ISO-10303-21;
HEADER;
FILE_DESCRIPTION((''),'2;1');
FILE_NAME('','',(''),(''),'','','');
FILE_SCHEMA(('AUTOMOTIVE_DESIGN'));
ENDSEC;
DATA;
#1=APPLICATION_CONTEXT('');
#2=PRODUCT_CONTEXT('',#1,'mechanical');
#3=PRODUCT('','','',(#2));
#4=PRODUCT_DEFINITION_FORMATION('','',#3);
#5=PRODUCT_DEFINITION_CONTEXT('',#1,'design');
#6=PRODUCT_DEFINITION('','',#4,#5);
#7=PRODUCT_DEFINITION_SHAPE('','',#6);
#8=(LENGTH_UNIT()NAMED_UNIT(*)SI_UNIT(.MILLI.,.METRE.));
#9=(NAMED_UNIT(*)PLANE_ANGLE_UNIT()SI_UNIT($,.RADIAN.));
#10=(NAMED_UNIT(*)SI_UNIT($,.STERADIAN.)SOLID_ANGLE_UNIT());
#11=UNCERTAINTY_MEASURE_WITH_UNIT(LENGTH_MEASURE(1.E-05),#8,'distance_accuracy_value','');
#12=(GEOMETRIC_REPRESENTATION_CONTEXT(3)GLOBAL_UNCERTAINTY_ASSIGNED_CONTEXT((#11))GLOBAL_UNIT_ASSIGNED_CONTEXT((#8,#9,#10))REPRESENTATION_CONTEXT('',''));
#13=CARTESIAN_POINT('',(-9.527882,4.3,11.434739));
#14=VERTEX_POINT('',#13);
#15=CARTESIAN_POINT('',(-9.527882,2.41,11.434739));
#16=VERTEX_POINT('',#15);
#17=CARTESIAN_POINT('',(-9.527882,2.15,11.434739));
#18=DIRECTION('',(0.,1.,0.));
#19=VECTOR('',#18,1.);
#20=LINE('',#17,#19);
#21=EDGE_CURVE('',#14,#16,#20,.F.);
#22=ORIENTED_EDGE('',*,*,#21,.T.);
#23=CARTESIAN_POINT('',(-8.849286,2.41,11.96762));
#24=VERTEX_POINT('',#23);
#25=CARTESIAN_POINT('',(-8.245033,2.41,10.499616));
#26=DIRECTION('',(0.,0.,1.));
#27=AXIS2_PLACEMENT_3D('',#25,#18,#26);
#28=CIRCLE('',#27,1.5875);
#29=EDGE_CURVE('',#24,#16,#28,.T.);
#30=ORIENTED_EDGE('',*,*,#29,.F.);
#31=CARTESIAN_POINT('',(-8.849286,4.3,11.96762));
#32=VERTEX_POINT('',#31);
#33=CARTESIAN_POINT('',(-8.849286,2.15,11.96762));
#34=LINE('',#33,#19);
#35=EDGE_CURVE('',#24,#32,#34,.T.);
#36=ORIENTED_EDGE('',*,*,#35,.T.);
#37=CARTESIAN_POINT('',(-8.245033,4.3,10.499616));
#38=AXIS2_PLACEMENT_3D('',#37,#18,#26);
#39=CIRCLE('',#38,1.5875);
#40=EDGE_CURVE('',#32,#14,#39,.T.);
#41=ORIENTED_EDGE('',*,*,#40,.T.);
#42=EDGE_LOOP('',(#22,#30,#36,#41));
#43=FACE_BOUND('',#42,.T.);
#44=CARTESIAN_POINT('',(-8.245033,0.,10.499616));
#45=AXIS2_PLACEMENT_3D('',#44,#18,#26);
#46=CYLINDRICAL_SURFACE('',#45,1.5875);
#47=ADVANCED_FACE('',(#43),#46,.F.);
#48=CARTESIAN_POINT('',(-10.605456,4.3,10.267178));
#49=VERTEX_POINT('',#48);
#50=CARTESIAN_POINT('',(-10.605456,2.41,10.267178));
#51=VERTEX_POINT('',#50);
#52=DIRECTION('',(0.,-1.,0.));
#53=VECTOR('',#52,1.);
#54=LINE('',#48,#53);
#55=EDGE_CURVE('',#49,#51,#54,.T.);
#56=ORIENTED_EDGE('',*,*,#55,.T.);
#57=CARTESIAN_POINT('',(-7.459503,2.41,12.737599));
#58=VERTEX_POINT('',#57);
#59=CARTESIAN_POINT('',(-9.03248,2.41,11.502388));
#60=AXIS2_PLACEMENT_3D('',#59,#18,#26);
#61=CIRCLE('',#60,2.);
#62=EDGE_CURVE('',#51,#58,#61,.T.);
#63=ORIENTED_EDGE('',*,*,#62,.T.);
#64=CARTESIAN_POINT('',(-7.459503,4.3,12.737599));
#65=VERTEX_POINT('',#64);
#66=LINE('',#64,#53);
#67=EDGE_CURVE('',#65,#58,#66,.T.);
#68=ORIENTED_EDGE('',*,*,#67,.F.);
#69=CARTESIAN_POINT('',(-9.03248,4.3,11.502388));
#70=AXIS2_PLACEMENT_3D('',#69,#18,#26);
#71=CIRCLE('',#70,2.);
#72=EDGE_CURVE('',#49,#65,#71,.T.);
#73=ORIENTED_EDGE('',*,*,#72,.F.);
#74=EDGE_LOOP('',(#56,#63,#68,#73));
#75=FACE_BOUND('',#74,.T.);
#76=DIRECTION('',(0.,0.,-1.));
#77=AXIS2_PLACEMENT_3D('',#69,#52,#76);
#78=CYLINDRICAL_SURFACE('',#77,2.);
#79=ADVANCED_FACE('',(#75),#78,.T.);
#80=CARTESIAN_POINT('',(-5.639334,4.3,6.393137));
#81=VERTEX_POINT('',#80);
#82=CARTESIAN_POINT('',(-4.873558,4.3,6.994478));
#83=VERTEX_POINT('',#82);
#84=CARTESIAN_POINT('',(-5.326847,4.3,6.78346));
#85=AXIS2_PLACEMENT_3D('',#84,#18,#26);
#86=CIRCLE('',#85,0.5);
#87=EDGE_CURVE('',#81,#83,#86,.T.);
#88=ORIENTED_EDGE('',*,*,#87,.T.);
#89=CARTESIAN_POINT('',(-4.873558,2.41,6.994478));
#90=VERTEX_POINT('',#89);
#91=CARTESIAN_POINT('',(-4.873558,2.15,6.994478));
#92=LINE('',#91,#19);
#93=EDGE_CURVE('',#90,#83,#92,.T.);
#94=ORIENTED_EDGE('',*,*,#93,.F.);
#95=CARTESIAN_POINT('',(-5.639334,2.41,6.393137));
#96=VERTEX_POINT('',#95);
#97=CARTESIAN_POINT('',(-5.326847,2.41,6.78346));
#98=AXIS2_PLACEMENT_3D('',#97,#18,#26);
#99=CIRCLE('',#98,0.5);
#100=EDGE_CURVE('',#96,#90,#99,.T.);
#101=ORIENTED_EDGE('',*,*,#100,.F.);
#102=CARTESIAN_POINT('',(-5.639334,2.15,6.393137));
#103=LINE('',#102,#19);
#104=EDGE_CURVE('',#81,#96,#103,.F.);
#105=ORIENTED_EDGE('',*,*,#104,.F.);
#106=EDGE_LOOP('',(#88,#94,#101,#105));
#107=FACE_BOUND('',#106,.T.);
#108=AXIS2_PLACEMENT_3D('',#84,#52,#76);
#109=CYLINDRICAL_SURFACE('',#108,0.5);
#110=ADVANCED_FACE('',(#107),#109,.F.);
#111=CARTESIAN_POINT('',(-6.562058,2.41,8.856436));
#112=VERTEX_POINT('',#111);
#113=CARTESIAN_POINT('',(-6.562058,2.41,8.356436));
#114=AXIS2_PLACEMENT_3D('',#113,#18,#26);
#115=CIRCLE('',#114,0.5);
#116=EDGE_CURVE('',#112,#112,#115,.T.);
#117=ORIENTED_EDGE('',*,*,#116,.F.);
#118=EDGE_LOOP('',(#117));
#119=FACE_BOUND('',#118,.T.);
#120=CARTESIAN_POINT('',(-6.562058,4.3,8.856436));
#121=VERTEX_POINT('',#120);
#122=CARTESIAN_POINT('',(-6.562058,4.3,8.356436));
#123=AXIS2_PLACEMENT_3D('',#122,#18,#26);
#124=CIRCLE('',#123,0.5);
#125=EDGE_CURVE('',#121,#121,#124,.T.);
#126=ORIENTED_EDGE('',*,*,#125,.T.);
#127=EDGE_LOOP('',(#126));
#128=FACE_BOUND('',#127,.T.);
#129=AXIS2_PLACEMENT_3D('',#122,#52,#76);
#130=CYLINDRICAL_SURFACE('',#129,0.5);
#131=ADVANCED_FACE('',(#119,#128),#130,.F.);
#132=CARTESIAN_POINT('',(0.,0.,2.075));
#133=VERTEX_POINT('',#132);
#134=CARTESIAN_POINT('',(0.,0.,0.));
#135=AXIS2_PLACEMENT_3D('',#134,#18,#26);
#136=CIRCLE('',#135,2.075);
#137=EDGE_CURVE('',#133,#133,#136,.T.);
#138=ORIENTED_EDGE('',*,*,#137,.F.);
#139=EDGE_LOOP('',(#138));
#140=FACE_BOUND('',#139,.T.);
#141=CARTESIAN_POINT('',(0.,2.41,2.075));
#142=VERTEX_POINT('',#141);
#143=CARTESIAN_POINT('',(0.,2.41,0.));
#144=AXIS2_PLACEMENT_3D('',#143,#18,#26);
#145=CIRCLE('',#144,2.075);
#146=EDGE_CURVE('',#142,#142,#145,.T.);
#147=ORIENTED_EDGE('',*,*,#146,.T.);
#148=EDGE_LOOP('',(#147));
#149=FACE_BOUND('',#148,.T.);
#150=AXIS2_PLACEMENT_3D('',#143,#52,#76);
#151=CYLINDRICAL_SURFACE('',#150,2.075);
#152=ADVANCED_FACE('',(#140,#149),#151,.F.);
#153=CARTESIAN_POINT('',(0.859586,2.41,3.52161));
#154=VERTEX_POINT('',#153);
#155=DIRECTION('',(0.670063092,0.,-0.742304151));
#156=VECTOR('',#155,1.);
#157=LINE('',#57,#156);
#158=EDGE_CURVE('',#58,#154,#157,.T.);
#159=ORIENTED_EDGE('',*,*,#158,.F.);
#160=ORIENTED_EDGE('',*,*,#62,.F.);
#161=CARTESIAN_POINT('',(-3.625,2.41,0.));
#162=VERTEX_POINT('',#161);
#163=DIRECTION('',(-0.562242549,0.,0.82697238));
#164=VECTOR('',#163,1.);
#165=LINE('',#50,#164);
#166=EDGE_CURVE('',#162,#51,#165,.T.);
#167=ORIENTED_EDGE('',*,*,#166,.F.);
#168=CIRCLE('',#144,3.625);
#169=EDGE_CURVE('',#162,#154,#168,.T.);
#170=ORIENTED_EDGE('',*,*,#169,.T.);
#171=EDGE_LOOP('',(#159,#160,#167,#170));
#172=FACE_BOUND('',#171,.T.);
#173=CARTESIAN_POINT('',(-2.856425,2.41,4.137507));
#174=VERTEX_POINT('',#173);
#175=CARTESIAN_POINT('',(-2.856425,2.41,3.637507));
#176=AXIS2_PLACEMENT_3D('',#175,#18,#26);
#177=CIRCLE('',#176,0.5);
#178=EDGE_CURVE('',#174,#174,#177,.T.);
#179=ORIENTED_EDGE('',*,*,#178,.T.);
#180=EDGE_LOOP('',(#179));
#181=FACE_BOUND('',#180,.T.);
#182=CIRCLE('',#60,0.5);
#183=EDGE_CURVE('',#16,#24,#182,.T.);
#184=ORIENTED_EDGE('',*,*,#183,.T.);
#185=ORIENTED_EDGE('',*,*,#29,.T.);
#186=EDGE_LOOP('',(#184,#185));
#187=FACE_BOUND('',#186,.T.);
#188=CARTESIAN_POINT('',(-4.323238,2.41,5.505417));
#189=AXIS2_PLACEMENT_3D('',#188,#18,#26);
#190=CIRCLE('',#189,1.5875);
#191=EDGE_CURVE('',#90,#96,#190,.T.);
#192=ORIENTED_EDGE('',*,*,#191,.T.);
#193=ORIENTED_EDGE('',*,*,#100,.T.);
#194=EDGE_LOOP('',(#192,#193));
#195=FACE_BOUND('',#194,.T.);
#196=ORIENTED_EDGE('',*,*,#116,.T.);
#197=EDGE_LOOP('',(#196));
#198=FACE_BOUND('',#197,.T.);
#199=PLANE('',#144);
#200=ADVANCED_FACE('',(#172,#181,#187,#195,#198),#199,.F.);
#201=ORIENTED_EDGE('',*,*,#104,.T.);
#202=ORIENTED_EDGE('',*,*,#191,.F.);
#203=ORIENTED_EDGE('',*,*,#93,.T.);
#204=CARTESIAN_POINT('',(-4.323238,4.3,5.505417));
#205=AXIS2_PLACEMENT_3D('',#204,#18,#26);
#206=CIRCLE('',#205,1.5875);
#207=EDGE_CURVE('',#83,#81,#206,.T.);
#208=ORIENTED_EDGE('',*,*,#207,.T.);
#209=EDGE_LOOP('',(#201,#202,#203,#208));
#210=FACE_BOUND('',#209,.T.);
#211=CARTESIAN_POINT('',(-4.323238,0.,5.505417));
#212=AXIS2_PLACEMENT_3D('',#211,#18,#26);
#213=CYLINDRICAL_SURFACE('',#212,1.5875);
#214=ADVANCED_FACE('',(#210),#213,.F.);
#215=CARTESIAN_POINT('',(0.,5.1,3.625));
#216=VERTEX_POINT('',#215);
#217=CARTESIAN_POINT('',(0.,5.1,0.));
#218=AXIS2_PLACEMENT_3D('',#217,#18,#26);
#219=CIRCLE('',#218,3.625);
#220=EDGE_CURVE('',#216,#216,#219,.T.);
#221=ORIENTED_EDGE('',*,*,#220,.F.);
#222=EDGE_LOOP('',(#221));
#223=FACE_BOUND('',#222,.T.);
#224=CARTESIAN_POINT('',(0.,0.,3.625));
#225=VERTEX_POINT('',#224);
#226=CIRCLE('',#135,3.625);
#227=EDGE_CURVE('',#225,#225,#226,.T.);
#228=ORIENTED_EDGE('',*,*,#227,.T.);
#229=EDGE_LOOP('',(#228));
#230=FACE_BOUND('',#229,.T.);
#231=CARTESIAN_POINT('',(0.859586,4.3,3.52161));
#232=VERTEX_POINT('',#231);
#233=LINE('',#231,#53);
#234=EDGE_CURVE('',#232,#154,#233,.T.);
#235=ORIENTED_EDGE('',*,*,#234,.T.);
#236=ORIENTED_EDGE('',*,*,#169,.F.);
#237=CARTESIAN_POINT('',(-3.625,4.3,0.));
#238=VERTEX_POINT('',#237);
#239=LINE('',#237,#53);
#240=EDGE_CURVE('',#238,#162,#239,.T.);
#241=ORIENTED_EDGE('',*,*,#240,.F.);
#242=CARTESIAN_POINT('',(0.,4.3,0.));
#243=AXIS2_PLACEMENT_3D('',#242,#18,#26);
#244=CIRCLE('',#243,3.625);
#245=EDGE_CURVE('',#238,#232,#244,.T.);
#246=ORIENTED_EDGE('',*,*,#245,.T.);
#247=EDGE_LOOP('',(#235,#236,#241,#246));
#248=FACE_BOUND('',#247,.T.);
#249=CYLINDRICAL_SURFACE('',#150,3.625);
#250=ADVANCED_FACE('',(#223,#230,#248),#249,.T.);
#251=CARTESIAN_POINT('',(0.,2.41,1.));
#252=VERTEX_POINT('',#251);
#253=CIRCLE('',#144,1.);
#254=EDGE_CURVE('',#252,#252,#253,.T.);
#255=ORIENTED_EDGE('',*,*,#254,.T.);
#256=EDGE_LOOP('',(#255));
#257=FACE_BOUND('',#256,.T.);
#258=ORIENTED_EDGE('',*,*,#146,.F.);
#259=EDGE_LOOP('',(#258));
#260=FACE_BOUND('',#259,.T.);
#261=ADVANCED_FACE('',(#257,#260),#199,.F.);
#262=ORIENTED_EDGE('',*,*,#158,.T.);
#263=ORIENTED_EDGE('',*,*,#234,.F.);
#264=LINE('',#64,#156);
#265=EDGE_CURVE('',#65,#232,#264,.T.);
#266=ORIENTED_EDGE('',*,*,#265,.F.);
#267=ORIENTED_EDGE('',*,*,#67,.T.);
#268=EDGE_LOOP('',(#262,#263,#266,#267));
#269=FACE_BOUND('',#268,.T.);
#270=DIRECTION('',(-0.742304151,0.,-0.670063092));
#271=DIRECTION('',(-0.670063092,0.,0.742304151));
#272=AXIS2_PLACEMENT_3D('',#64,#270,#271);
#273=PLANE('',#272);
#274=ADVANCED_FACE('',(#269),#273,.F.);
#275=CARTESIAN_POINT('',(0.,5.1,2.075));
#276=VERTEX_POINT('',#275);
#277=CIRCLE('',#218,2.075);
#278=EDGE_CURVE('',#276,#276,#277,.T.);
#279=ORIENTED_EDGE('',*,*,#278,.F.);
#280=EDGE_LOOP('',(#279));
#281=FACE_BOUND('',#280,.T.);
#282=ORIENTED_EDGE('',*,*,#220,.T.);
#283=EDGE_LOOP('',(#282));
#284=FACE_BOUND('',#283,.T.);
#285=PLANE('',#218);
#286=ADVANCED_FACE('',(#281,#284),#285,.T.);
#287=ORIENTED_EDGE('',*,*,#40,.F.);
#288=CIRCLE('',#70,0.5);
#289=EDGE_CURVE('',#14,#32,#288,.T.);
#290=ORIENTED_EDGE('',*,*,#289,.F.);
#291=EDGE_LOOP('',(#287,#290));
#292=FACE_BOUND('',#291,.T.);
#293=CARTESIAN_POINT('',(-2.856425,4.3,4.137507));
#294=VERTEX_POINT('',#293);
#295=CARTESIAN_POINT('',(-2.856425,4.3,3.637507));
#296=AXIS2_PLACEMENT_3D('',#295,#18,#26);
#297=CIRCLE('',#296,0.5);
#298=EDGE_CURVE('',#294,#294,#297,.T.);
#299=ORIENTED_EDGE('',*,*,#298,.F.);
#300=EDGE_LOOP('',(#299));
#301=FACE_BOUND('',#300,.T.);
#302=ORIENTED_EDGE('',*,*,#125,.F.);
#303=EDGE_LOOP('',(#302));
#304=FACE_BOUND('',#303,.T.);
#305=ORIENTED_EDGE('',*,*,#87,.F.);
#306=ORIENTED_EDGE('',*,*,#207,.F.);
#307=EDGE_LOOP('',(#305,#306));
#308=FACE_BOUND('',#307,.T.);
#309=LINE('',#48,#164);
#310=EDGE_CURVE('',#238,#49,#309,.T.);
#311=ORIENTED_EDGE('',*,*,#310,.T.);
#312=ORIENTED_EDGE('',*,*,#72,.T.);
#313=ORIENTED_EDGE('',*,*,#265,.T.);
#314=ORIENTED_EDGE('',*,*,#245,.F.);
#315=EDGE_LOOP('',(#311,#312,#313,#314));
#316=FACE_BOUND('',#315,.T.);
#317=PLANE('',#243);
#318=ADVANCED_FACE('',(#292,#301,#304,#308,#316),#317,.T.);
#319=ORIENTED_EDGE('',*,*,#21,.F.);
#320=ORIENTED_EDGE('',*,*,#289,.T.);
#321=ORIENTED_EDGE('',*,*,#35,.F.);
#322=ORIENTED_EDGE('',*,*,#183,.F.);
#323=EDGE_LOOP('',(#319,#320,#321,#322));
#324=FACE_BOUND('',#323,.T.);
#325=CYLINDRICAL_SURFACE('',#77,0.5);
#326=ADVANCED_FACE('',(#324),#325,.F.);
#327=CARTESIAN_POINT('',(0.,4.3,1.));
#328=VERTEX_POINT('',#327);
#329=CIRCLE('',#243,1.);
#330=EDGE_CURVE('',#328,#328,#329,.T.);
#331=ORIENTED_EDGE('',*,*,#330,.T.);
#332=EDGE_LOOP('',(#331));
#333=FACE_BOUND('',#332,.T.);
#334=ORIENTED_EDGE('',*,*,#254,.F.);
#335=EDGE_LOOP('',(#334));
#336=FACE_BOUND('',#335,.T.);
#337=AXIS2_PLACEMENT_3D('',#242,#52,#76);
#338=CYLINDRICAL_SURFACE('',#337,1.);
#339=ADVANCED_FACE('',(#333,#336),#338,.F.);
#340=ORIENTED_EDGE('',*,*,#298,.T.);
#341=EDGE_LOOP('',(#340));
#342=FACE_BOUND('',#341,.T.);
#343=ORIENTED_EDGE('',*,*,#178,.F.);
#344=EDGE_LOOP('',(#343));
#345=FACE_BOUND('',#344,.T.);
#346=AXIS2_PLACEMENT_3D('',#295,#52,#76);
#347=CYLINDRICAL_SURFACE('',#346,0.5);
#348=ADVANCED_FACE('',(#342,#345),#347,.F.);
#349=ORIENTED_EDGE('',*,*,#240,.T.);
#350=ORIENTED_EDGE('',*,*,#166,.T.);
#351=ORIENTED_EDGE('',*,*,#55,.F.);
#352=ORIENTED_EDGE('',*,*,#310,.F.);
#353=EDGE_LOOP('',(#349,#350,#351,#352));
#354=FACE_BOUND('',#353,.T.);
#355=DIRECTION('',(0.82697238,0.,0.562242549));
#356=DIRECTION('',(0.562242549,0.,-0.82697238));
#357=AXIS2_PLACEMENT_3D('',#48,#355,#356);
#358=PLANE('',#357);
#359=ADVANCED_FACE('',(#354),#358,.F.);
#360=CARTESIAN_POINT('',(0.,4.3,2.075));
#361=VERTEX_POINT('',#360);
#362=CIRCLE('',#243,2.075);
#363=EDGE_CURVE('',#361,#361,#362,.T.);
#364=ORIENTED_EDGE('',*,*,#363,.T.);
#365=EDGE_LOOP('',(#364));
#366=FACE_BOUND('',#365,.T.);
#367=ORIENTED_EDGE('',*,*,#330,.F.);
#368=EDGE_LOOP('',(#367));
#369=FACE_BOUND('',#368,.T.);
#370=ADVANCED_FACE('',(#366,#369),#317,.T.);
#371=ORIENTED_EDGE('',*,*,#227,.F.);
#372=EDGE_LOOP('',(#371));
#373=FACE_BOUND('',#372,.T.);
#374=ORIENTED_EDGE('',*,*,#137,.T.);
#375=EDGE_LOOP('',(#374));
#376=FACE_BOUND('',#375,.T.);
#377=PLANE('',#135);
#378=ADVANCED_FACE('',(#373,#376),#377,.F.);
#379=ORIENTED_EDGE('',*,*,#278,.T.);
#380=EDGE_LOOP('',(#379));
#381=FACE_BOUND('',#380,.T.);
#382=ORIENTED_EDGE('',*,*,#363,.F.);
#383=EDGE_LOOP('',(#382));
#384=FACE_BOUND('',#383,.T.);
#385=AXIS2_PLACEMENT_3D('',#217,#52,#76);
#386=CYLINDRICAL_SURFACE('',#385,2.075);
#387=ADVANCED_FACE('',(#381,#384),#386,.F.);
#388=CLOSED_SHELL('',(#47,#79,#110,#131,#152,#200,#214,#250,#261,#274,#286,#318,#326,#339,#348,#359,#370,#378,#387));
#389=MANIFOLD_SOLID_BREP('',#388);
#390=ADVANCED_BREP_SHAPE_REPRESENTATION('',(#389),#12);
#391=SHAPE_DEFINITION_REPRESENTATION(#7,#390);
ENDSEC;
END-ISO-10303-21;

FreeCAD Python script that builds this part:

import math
import FreeCAD as App
import Part
import Sketcher

V = App.Vector
Q = App.Units.Quantity

doc = App.newDocument("Part")
body = doc.addObject("PartDesign::Body", "Body")

sketch1 = doc.addObject("Sketcher::SketchObject", "Sketch")
body.addObject(sketch1)
sketch1.AttachmentSupport = (doc.XZ_Plane, [""])
sketch1.MapMode = "FlatFace"
sketch1.addGeometry([
    Part.Circle(V(0, 0, 0), V(0, 0, 1), 3.625),
    Part.Circle(V(0, 0, 0), V(0, 0, 1), 2.075),
], False)
sketch1.addConstraint([
    Sketcher.Constraint("Coincident", 0, 3, -1, 1),
    Sketcher.Constraint("Coincident", 1, 3, -1, 1),
    Sketcher.Constraint("Diameter", 0, Q("7.25 mm")),
    Sketcher.Constraint("Diameter", 1, Q("4.15 mm")),
])
pad1 = doc.addObject("PartDesign::Pad", "Pad")
body.addObject(pad1)
pad1.Profile = sketch1
pad1.Length = 2.41
pad1.Reversed = True

sketch2 = doc.addObject("Sketcher::SketchObject", "Sketch001")
body.addObject(sketch2)
sketch2.AttachmentSupport = (doc.XZ_Plane, [""])
sketch2.MapMode = "FlatFace"
sketch2.AttachmentOffset = App.Placement(V(0, 0, -2.41), App.Rotation())
sketch2.addGeometry([
    Part.LineSegment(V(-3.625, 0, 0), V(-10.605456, 10.267178, 0)),
    Part.ArcOfCircle(Part.Circle(V(-9.03248, 11.502388, 0), V(0, 0, 1), 2), math.radians(38.141481), math.radians(218.141481)),
    Part.LineSegment(V(-7.459503, 12.737599, 0), V(0.859586, 3.52161, 0)),
    Part.ArcOfCircle(Part.Circle(V(0, 0, 0), V(0, 0, 1), 3.625), math.radians(180), math.radians(436.282962)),
    Part.Circle(V(-9.03248, 11.502388, 0), V(0, 0, 1), 0.5),
    Part.Circle(V(-7.797269, 9.929412, 0), V(0, 0, 1), 0.5),
    Part.Circle(V(-6.562058, 8.356436, 0), V(0, 0, 1), 0.5),
    Part.Circle(V(-5.326847, 6.78346, 0), V(0, 0, 1), 0.5),
    Part.Circle(V(-4.091636, 5.210484, 0), V(0, 0, 1), 0.5),
    Part.Circle(V(-2.856425, 3.637507, 0), V(0, 0, 1), 0.5),
    Part.Circle(V(0, 0, 0), V(0, 0, 1), 1),
], False)
sketch2.addConstraint([
    Sketcher.Constraint("Coincident", 0, 2, 1, 2),
    Sketcher.Constraint("Coincident", 1, 1, 2, 1),
    Sketcher.Constraint("Coincident", 2, 2, 3, 2),
    Sketcher.Constraint("Coincident", 3, 1, 0, 1),
    Sketcher.Constraint("Coincident", 3, 3, -1, 1),
    Sketcher.Constraint("Coincident", 10, 3, -1, 1),
    Sketcher.Constraint("Coincident", 4, 3, 1, 3),
    Sketcher.Constraint("Equal", 4, 5),
    Sketcher.Constraint("Equal", 5, 6),
    Sketcher.Constraint("Equal", 6, 7),
    Sketcher.Constraint("Equal", 7, 8),
    Sketcher.Constraint("Equal", 8, 9),
    Sketcher.Constraint("PointOnObject", 3, 1, -1),
    Sketcher.Constraint("Equal", 0, 2),
    Sketcher.Constraint("Diameter", 4, Q("1 mm")),
    Sketcher.Constraint("Diameter", 10, Q("2 mm")),
    Sketcher.Constraint("Radius", 1, Q("2 mm")),
    Sketcher.Constraint("Radius", 3, Q("3.625 mm")),
    Sketcher.Constraint("DistanceY", -1, 1, 1, 1, Q("12.737599 mm")),
    Sketcher.Constraint("Distance", 0, Q("12.415381 mm")),
    Sketcher.Constraint("DistanceX", 1, 3, -1, 1, Q("9.03248 mm")),
    Sketcher.Constraint("DistanceY", -1, 1, 1, 3, Q("11.502388 mm")),
    Sketcher.Constraint("DistanceX", 5, 3, -1, 1, Q("7.797269 mm")),
    Sketcher.Constraint("DistanceY", -1, 1, 7, 3, Q("6.78346 mm")),
    Sketcher.Constraint("DistanceX", 5, 3, 6, 3, Q("1.235211 mm")),
    Sketcher.Constraint("DistanceX", 6, 3, 7, 3, Q("1.235211 mm")),
    Sketcher.Constraint("DistanceX", 7, 3, 8, 3, Q("1.235211 mm")),
    Sketcher.Constraint("DistanceY", 8, 3, 5, 3, Q("4.718929 mm")),
    Sketcher.Constraint("DistanceX", 8, 3, 9, 3, Q("1.235211 mm")),
    Sketcher.Constraint("DistanceY", 9, 3, 6, 3, Q("4.718929 mm")),
    Sketcher.Constraint("DistanceY", 6, 3, 0, 2, Q("1.910742 mm")),
    Sketcher.Constraint("DistanceY", -1, 1, 5, 3, Q("9.929412 mm")),
])
pad2 = doc.addObject("PartDesign::Pad", "Pad001")
body.addObject(pad2)
pad2.Profile = sketch2
pad2.Length = 1.89
pad2.Reversed = True

sketch3 = doc.addObject("Sketcher::SketchObject", "Sketch002")
body.addObject(sketch3)
sketch3.AttachmentSupport = (doc.XZ_Plane, [""])
sketch3.MapMode = "FlatFace"
sketch3.AttachmentOffset = App.Placement(V(0, 0, -4.3), App.Rotation())
sketch3.addGeometry([
    Part.Circle(V(0, 0, 0), V(0, 0, 1), 3.625),
    Part.Circle(V(0, 0, 0), V(0, 0, 1), 2.075),
], False)
sketch3.addConstraint([
    Sketcher.Constraint("Coincident", 0, 3, -1, 1),
    Sketcher.Constraint("Coincident", 1, 3, -1, 1),
    Sketcher.Constraint("Diameter", 0, Q("7.25 mm")),
    Sketcher.Constraint("Diameter", 1, Q("4.15 mm")),
])
pad3 = doc.addObject("PartDesign::Pad", "Pad002")
body.addObject(pad3)
pad3.Profile = sketch3
pad3.Length = 0.8
pad3.Reversed = True

sketch4 = doc.addObject("Sketcher::SketchObject", "Sketch003")
body.addObject(sketch4)
sketch4.AttachmentSupport = (doc.XZ_Plane, [""])
sketch4.MapMode = "FlatFace"
sketch4.AttachmentOffset = App.Placement(V(0, 0, -4.3), App.Rotation())
sketch4.addGeometry([
    Part.Circle(V(-8.245033, 10.499616, 0), V(0, 0, 1), 1.5875),
    Part.Circle(V(-4.323238, 5.505417, 0), V(0, 0, 1), 1.5875),
], False)
sketch4.addConstraint([
    Sketcher.Constraint("Equal", 0, 1),
    Sketcher.Constraint("Diameter", 0, Q("3.175 mm")),
    Sketcher.Constraint("DistanceY", 1, 3, 0, 3, Q("4.994199 mm")),
    Sketcher.Constraint("DistanceX", 1, 3, -1, 1, Q("4.323238 mm")),
    Sketcher.Constraint("DistanceX", 0, 3, -1, 1, Q("8.245033 mm")),
    Sketcher.Constraint("DistanceY", -1, 1, 0, 3, Q("10.499616 mm")),
])
pocket1 = doc.addObject("PartDesign::Pocket", "Pocket")
body.addObject(pocket1)
pocket1.Profile = sketch4
pocket1.Type = "ThroughAll"
pocket1.Reversed = True

doc.recompute()
